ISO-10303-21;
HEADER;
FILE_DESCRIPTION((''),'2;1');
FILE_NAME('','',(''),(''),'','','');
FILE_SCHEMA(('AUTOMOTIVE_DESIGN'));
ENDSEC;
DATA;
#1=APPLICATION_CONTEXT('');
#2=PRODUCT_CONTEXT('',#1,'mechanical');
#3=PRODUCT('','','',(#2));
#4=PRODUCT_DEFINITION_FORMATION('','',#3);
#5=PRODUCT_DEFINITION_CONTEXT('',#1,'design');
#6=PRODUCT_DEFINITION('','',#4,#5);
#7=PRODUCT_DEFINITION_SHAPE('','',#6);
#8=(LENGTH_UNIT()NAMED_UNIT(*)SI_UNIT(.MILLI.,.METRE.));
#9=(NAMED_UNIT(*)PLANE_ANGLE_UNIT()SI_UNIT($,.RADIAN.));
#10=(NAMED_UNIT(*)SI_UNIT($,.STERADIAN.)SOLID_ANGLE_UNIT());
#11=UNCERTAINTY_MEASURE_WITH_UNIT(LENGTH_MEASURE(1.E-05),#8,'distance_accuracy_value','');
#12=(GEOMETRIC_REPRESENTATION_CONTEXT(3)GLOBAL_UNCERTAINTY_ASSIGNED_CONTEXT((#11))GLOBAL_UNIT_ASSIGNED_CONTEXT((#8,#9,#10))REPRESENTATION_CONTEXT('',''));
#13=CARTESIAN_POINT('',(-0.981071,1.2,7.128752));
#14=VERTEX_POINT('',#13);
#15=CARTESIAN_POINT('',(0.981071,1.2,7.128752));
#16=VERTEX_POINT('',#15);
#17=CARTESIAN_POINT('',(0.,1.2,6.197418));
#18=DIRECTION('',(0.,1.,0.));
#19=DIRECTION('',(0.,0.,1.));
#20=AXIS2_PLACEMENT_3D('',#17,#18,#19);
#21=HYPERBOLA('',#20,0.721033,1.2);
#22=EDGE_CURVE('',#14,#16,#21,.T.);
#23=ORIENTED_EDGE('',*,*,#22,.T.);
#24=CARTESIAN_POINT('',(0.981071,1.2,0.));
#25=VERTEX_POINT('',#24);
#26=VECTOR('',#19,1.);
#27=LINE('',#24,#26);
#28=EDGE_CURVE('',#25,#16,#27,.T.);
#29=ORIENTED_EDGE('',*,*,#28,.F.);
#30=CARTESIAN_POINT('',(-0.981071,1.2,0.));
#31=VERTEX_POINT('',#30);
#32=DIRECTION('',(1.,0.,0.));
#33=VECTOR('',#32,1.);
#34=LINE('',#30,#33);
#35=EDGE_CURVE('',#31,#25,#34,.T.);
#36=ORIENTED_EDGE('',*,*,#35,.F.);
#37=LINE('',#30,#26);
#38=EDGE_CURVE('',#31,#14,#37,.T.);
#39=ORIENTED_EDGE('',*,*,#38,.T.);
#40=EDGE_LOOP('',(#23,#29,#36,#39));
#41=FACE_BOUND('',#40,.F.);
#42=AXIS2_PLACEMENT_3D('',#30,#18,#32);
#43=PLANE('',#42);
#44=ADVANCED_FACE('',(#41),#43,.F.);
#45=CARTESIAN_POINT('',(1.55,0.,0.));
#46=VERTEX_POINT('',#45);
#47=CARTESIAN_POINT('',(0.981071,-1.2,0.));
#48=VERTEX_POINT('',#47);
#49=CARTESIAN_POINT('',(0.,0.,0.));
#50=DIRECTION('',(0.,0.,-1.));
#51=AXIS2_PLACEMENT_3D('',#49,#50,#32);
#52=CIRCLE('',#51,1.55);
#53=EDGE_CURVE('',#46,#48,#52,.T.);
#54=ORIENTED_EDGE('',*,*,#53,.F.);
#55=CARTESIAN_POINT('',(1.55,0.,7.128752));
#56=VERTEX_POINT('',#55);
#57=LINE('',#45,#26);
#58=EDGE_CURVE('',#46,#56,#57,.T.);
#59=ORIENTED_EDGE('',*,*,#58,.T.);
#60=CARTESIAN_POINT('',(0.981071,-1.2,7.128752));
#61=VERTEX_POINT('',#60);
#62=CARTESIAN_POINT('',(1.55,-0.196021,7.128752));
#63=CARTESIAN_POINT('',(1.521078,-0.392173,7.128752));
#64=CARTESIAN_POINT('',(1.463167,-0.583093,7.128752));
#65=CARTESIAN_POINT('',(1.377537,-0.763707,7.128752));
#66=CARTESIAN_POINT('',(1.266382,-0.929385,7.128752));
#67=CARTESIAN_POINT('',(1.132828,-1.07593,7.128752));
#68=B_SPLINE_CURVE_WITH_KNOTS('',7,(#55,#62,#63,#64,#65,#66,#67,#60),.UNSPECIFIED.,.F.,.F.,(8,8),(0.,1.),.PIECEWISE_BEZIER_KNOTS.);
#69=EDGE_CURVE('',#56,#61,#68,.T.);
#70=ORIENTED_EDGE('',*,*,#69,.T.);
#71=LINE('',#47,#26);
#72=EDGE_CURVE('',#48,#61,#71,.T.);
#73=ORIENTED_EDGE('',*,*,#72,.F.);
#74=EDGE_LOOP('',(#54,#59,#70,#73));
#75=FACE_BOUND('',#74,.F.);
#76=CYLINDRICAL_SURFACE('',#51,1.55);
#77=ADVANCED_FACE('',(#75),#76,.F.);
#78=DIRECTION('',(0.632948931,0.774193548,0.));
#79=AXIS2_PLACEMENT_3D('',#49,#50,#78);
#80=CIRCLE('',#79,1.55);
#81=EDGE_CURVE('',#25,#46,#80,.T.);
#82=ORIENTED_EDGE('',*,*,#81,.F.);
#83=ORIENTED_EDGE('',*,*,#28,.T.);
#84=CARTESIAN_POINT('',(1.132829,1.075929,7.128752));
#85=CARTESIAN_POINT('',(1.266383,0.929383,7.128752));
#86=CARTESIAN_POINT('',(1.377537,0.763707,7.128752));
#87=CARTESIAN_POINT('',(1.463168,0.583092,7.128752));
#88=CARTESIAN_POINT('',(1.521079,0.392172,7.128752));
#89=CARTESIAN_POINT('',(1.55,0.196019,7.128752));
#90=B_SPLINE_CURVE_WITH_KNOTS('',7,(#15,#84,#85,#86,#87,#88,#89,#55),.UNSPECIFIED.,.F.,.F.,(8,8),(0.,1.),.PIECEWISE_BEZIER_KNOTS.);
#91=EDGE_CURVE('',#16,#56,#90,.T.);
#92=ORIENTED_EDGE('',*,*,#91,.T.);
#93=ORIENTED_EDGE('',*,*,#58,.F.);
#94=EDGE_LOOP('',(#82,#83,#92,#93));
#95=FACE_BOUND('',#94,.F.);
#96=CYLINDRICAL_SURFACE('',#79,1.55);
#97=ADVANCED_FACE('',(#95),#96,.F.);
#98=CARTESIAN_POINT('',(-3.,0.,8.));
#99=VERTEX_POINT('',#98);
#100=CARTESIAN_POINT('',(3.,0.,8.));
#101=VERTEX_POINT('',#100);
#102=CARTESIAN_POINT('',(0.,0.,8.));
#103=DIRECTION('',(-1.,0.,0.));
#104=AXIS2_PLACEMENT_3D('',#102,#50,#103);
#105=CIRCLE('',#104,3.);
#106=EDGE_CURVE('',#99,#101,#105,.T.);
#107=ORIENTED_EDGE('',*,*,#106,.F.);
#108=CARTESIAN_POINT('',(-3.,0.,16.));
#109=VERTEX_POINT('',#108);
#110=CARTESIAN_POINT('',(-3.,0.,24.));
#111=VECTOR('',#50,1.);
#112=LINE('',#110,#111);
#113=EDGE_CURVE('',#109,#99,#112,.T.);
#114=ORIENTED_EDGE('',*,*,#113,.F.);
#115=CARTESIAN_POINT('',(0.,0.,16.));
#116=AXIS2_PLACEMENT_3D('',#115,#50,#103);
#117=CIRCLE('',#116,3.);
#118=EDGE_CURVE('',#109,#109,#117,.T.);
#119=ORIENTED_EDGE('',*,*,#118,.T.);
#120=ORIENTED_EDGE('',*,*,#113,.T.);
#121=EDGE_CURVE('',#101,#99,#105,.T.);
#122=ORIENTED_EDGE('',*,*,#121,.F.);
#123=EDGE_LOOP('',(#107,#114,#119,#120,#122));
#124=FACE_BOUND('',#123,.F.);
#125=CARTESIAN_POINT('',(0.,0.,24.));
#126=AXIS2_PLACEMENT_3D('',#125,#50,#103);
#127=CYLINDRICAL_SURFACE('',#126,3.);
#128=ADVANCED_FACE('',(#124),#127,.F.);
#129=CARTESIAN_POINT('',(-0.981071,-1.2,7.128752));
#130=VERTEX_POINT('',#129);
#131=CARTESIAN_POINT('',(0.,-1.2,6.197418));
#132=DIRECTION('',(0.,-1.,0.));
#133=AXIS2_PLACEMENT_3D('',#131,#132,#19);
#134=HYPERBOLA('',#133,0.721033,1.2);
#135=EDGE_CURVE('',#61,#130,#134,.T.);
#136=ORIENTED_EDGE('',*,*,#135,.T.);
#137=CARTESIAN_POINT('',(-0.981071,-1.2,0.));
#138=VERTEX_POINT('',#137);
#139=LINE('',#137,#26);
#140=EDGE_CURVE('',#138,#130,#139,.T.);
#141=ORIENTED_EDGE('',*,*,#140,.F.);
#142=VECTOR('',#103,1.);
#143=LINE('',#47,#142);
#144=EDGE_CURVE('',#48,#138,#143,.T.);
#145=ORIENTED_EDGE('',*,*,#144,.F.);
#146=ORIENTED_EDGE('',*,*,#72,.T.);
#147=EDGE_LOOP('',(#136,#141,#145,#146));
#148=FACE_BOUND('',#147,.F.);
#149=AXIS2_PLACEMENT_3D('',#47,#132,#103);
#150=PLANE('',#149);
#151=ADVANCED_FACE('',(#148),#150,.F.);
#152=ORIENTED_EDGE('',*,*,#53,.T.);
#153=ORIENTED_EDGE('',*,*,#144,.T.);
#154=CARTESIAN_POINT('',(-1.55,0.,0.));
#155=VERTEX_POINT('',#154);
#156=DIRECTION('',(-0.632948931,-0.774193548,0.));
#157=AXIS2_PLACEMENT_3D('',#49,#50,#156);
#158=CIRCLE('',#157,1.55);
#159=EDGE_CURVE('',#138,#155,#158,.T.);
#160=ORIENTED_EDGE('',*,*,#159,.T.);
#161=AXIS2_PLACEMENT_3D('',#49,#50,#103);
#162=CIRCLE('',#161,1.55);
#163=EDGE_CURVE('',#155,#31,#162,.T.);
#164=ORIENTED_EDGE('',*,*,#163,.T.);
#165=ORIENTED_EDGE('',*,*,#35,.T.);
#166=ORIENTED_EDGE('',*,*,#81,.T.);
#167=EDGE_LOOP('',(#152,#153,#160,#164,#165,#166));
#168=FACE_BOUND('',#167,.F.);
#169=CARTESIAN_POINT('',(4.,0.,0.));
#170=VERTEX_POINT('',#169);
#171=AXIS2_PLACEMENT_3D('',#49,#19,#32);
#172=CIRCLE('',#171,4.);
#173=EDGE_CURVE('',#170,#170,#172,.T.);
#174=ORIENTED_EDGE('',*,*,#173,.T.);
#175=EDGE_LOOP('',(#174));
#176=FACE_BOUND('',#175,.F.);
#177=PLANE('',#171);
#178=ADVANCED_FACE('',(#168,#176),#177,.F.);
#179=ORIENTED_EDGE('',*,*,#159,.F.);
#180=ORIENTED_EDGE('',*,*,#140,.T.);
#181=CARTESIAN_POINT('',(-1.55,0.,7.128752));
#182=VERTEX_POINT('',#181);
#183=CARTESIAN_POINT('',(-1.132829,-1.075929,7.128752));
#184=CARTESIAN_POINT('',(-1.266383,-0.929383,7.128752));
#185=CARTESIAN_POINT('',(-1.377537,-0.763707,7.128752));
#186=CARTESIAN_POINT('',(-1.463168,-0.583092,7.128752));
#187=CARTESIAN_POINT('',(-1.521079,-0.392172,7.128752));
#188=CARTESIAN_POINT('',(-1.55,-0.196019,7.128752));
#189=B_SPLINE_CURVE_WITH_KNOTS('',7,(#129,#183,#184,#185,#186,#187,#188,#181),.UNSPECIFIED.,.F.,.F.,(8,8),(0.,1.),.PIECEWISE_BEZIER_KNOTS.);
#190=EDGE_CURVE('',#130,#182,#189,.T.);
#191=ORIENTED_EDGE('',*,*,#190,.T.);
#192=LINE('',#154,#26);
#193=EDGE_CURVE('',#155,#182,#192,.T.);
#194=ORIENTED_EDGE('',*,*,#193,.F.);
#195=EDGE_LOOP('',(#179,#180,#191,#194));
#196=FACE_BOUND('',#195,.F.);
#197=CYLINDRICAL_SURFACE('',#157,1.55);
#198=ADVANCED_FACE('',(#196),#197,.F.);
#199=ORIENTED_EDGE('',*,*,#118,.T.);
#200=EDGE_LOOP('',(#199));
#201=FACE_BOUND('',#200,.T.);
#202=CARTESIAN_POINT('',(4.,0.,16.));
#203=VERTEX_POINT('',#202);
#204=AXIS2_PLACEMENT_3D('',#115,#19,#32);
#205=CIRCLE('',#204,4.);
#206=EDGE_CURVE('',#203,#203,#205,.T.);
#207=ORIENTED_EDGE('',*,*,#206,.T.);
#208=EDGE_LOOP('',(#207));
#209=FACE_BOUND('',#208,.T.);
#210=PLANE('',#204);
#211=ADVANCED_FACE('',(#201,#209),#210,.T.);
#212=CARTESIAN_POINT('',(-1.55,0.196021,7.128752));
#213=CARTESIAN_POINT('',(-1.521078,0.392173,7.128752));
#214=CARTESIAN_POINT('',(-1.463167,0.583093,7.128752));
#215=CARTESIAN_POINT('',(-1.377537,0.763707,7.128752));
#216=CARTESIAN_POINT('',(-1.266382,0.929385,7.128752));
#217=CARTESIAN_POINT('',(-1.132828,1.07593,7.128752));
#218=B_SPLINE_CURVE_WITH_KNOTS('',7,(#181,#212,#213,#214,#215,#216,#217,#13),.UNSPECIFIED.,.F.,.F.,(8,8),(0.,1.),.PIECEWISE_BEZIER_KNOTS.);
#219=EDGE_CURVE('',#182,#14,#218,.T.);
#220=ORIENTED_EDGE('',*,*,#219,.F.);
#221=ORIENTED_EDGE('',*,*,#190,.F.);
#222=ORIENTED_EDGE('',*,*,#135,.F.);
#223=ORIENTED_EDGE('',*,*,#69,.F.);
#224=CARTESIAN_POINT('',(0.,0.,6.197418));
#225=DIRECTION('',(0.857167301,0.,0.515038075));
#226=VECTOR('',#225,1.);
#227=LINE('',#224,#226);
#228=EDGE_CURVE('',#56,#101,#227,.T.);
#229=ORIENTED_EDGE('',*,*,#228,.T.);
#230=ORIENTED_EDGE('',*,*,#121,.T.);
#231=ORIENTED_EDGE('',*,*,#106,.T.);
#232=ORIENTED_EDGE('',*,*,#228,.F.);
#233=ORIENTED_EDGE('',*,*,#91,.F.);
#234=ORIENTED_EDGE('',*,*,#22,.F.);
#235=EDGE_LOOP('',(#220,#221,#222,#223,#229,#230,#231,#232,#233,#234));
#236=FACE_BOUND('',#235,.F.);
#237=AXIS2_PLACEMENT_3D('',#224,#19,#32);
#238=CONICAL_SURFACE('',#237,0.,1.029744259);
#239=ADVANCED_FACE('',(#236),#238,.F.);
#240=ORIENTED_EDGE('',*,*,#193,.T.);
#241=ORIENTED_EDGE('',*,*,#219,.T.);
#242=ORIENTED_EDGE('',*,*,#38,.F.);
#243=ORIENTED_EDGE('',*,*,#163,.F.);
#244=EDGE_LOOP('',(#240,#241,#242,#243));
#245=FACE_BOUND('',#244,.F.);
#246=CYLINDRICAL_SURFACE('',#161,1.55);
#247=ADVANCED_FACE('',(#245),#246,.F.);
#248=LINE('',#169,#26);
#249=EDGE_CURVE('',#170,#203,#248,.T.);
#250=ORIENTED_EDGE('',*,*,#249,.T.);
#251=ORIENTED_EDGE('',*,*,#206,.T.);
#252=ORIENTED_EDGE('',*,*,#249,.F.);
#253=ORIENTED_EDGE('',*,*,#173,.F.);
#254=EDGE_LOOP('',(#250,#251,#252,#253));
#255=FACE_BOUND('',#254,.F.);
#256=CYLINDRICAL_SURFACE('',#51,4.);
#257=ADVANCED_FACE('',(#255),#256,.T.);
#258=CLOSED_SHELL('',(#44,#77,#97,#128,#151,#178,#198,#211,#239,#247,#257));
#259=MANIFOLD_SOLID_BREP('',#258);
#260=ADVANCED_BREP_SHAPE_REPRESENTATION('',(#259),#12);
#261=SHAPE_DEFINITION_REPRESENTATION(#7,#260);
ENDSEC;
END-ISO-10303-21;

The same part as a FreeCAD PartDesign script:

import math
import FreeCAD as App
import Part
import Sketcher
Q = App.Units.Quantity

doc = App.newDocument("Part")
params = doc.addObject("Spreadsheet::Sheet", "Params")
for row, (alias, value) in enumerate([
    ("sketch1_diameter", "8 mm"),
    ("sketch1_radius", "1.55 mm"),
    ("pad1_length", "16 mm"),
    ("sketch2_diameter", "6 mm"),
    ("hole_diameter", "6 mm"),
    ("hole_depth", "8 mm"),
], start=1):
    params.set(f"A{row}", alias)
    params.set(f"B{row}", "=" + value)
    params.setAlias(f"B{row}", alias)

body = doc.addObject("PartDesign::Body", "Body")

sketch1 = body.newObject("Sketcher::SketchObject", "Sketch")
sketch1.AttachmentSupport = (doc.getObject("XY_Plane"), [""])
sketch1.MapMode = "FlatFace"
sketch1.addGeometry(Part.Circle(App.Vector(0, 0, 0), App.Vector(0, 0, 1), 4), False)
sketch1.addGeometry(Part.ArcOfCircle(Part.Circle(App.Vector(0, 0, 0), App.Vector(0, 0, 1), 1.6), math.radians(180), math.radians(231)), False)
sketch1.addGeometry(Part.ArcOfCircle(Part.Circle(App.Vector(0, 0, 0), App.Vector(0, 0, 1), 1.6), math.radians(129), math.radians(180)), False)
sketch1.addGeometry(Part.LineSegment(App.Vector(-1, 1.2, 0), App.Vector(1, 1.2, 0)), False)
sketch1.addGeometry(Part.ArcOfCircle(Part.Circle(App.Vector(0, 0, 0), App.Vector(0, 0, 1), 1.6), math.radians(0), math.radians(51)), False)
sketch1.addGeometry(Part.ArcOfCircle(Part.Circle(App.Vector(0, 0, 0), App.Vector(0, 0, 1), 1.6), math.radians(-51), math.radians(0)), False)
sketch1.addGeometry(Part.LineSegment(App.Vector(1, -1.2, 0), App.Vector(-1, -1.2, 0)), False)
sketch1.addConstraint(Sketcher.Constraint("Tangent", 1, 1, 2, 2))
sketch1.addConstraint(Sketcher.Constraint("Coincident", 2, 1, 3, 1))
sketch1.addConstraint(Sketcher.Constraint("Coincident", 3, 2, 4, 2))
sketch1.addConstraint(Sketcher.Constraint("Tangent", 4, 1, 5, 2))
sketch1.addConstraint(Sketcher.Constraint("Coincident", 5, 1, 6, 1))
sketch1.addConstraint(Sketcher.Constraint("Coincident", 6, 2, 1, 2))
sketch1.addConstraint(Sketcher.Constraint("Horizontal", 3))
sketch1.addConstraint(Sketcher.Constraint("Horizontal", 6))
sketch1.addConstraint(Sketcher.Constraint("Coincident", 0, 3, -1, 1))
sketch1.addConstraint(Sketcher.Constraint("Coincident", 1, 3, -1, 1))
sketch1.addConstraint(Sketcher.Constraint("Coincident", 4, 3, -1, 1))
sketch1.addConstraint(Sketcher.Constraint("Equal", 1, 2))
sketch1.addConstraint(Sketcher.Constraint("Equal", 2, 4))
sketch1.addConstraint(Sketcher.Constraint("Equal", 4, 5))
sketch1.addConstraint(Sketcher.Constraint("PointOnObject", 1, 1, -1))
sketch1.addConstraint(Sketcher.Constraint("PointOnObject", 4, 1, -1))
sketch1.addConstraint(Sketcher.Constraint("Vertical", 3, 2, 5, 1))
sketch1.addConstraint(Sketcher.Constraint("Diameter", 0, Q("8 mm")))
sketch1.addConstraint(Sketcher.Constraint("Radius", 1, Q("1.55 mm")))
sketch1.addConstraint(Sketcher.Constraint("DistanceY", -1, 1, 2, 1, Q("1.2 mm")))
sketch1.setExpression("Constraints[17]", "Params.sketch1_diameter")
sketch1.setExpression("Constraints[18]", "Params.sketch1_radius")
pad1 = body.newObject("PartDesign::Pad", "Pad")
pad1.Profile = sketch1
pad1.setExpression("Length", "Params.pad1_length")

sketch2 = body.newObject("Sketcher::SketchObject", "Sketch001")
sketch2.AttachmentSupport = (doc.getObject("XY_Plane"), [""])
sketch2.MapMode = "FlatFace"
sketch2.AttachmentOffset = App.Placement(App.Vector(0, 0, 16), App.Rotation())
sketch2.addGeometry(Part.Circle(App.Vector(0, 0, 0), App.Vector(0, 0, 1), 3), False)
sketch2.addConstraint(Sketcher.Constraint("Coincident", 0, 3, -1, 1))
sketch2.addConstraint(Sketcher.Constraint("Diameter", 0, Q("6 mm")))
sketch2.setExpression("Constraints[1]", "Params.sketch2_diameter")
doc.recompute()
hole = body.newObject("PartDesign::Hole", "Hole")
hole.Profile = sketch2
hole.ThreadType = "None"
hole.setExpression("Diameter", "Params.hole_diameter")
hole.DepthType = "Dimension"
hole.setExpression("Depth", "Params.hole_depth")
hole.DrillPoint = "Angled"
hole.DrillPointAngle = 118

doc.recompute()
